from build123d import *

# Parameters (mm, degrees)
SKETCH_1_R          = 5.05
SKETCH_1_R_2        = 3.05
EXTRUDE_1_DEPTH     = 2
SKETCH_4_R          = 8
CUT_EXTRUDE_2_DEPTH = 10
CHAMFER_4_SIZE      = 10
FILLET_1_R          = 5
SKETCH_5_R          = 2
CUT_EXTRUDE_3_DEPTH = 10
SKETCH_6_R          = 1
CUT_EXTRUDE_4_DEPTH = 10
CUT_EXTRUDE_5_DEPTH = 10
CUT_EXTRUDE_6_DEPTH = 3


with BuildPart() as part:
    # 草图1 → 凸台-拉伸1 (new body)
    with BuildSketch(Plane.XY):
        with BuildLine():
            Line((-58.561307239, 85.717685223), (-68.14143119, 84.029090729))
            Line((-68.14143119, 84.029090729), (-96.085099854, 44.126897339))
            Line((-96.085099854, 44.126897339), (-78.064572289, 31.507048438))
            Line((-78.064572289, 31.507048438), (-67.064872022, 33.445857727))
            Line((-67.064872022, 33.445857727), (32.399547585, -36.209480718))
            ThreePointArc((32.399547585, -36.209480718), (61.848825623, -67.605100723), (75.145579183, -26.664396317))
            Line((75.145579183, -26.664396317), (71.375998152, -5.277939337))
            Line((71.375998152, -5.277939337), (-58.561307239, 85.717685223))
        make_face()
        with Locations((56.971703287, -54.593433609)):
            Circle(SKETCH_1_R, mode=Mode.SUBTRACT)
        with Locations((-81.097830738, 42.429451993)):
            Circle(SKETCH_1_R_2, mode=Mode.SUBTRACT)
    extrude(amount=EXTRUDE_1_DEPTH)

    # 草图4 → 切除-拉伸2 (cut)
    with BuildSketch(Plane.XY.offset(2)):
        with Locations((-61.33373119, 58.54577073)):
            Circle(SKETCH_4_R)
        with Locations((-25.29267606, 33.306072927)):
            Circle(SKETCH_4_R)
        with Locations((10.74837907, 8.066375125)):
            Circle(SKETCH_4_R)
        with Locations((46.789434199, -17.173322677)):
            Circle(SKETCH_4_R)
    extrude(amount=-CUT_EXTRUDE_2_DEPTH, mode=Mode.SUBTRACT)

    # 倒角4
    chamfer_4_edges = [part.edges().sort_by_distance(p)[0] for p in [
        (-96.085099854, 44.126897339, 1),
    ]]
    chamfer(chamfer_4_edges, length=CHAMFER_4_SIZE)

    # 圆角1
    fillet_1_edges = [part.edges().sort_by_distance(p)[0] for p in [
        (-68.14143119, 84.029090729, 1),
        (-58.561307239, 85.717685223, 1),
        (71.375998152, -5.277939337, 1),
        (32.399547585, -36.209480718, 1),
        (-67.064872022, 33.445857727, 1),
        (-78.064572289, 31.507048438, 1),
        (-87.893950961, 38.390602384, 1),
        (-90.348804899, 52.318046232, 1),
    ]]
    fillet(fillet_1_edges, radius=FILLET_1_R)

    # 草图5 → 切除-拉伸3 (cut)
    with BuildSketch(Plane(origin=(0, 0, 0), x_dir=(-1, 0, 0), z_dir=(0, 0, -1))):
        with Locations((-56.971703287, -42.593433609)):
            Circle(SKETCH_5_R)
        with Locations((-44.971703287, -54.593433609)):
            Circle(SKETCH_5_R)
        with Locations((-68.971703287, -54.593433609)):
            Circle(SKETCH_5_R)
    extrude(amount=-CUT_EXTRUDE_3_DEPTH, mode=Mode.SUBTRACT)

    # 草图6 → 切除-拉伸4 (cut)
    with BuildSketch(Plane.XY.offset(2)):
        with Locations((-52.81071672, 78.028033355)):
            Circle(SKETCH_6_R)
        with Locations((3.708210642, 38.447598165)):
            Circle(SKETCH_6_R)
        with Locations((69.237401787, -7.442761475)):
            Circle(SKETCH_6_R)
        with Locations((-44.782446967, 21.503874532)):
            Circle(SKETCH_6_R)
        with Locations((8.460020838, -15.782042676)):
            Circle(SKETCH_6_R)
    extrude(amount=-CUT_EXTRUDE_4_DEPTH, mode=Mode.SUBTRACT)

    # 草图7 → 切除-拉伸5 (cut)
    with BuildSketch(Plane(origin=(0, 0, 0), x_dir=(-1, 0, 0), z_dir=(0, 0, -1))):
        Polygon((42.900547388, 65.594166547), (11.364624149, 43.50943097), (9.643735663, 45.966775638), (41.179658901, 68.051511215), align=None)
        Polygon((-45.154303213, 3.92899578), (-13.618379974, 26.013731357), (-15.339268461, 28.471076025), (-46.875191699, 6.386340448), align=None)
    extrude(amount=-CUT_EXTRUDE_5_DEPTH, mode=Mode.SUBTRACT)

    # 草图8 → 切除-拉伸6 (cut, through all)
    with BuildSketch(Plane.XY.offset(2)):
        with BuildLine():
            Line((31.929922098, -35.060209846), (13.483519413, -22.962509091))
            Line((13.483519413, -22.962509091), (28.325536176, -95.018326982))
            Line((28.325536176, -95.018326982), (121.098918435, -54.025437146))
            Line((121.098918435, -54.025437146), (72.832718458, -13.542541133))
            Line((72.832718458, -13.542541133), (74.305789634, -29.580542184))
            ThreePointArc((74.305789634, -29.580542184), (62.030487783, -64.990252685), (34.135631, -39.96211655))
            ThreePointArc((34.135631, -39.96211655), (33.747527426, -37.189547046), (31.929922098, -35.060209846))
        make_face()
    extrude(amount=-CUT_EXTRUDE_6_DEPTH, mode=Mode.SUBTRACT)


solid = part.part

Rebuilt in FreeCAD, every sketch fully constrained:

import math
import FreeCAD as App
import Part
import Sketcher
from FreeCAD import Vector


def edges_at(feature, points):
    """Names of the edges that pass closest to the given points."""
    edges = feature.Shape.Edges
    near = lambda p: min(range(len(edges)), key=lambda i: edges[i].distToShape(Part.Vertex(*p))[0])
    return sorted({f"Edge{near(p) + 1}" for p in points})


def add_polygon(sketch, points):
    """Adds a closed chain of lines whose ends are joined by coincident constraints."""
    first, n = sketch.GeometryCount, len(points)
    for a, b in zip(points, points[1:] + points[:1]):
        sketch.addGeometry(Part.LineSegment(App.Vector(*a, 0), App.Vector(*b, 0)), False)
    for i in range(n):
        sketch.addConstraint(Sketcher.Constraint("Coincident", first + i, 2, first + (i + 1) % n, 1))

doc = App.newDocument("Part")
params = doc.addObject("Spreadsheet::Sheet", "Params")
for row, (alias, value) in enumerate([
    ("sketch1_radius", "25 mm"),
    ("sketch1_diameter", "10.1 mm"),
    ("sketch1_diameter2", "6.1 mm"),
    ("sketch1_length", "22 mm"),
    ("pad1_length", "2 mm"),
    ("sketch2_diameter", "16 mm"),
    ("pocket1_length", "10 mm"),
    ("chamfer_size", "10 mm"),
    ("fillet_radius", "5 mm"),
    ("sketch3_diameter", "4 mm"),
    ("pocket2_length", "10 mm"),
    ("sketch4_diameter", "2 mm"),
    ("pocket3_length", "10 mm"),
    ("sketch5_length", "3 mm"),
    ("sketch5_length2", "38.5 mm"),
    ("pocket4_length", "10 mm"),
    ("sketch6_radius", "5 mm"),
    ("sketch6_radius2", "22.5 mm"),
], start=1):
    params.set(f"A{row}", alias)
    params.set(f"B{row}", "=" + value)
    params.setAlias(f"B{row}", alias)

body = doc.addObject("PartDesign::Body", "Body")

sketch1 = body.newObject("Sketcher::SketchObject", "Sketch")
sketch1.AttachmentSupport = (doc.getObject("XY_Plane"), [""])
sketch1.MapMode = "FlatFace"
sketch1.addGeometry(Part.LineSegment(Vector(-58.6, 85.7, 0), Vector(-68.1, 84, 0)), False)
sketch1.addGeometry(Part.LineSegment(Vector(-68.1, 84, 0), Vector(-96.1, 44.1, 0)), False)
sketch1.addGeometry(Part.LineSegment(Vector(-96.1, 44.1, 0), Vector(-78.1, 31.5, 0)), False)
sketch1.addGeometry(Part.LineSegment(Vector(-78.1, 31.5, 0), Vector(-67.1, 33.4, 0)), False)
sketch1.addGeometry(Part.LineSegment(Vector(-67.1, 33.4, 0), Vector(32.4, -36.2, 0)), False)
sketch1.addGeometry(Part.ArcOfCircle(Part.Circle(Vector(56.4, -43.2, 0), Vector(0, 0, 1), 25), math.radians(164), math.radians(401)), False)
sketch1.addGeometry(Part.LineSegment(Vector(75.1, -26.7, 0), Vector(71.4, -5.3, 0)), False)
sketch1.addGeometry(Part.LineSegment(Vector(71.4, -5.3, 0), Vector(-58.6, 85.7, 0)), False)
sketch1.addGeometry(Part.Circle(Vector(57, -54.6, 0), Vector(0, 0, 1), 5), False)
sketch1.addGeometry(Part.Circle(Vector(-81.1, 42.4, 0), Vector(0, 0, 1), 3), False)
sketch1.addConstraint(Sketcher.Constraint("Coincident", 0, 2, 1, 1))
sketch1.addConstraint(Sketcher.Constraint("Coincident", 1, 2, 2, 1))
sketch1.addConstraint(Sketcher.Constraint("Coincident", 2, 2, 3, 1))
sketch1.addConstraint(Sketcher.Constraint("Coincident", 3, 2, 4, 1))
sketch1.addConstraint(Sketcher.Constraint("Coincident", 4, 2, 5, 1))
sketch1.addConstraint(Sketcher.Constraint("Coincident", 5, 2, 6, 1))
sketch1.addConstraint(Sketcher.Constraint("Coincident", 6, 2, 7, 1))
sketch1.addConstraint(Sketcher.Constraint("Coincident", 7, 2, 0, 1))
sketch1.addConstraint(Sketcher.Constraint("Perpendicular", 1, 2))
sketch1.addConstraint(Sketcher.Constraint("Parallel", 0, 3))
sketch1.addConstraint(Sketcher.Constraint("Parallel", 2, 4))
sketch1.addConstraint(Sketcher.Constraint("Perpendicular", 3, 6))
sketch1.addConstraint(Sketcher.Constraint("Parallel", 4, 7))
sketch1.addConstraint(Sketcher.Constraint("Radius", 5, 25.0))
sketch1.addConstraint(Sketcher.Constraint("Diameter", 8, 10.1))
sketch1.addConstraint(Sketcher.Constraint("Diameter", 9, 6.1))
sketch1.addConstraint(Sketcher.Constraint("Distance", 2, 22.0))
sketch1.addConstraint(Sketcher.Constraint("DistanceX", -1, 1, 6, 2, 71.375998))
sketch1.addConstraint(Sketcher.Constraint("Distance", 0, 9.727802))
sketch1.addConstraint(Sketcher.Constraint("DistanceX", 1, 2, -1, 1, 96.0851))
sketch1.addConstraint(Sketcher.Constraint("DistanceX", 9, 3, 0, 2, 12.9564))
sketch1.addConstraint(Sketcher.Constraint("DistanceX", 2, 2, 3, 2, 10.9997))
sketch1.addConstraint(Sketcher.Constraint("Distance", 3, 11.169261))
sketch1.addConstraint(Sketcher.Constraint("Distance", 6, 21.71613))
sketch1.addConstraint(Sketcher.Constraint("DistanceX", 9, 3, -1, 1, 81.097831))
sketch1.addConstraint(Sketcher.Constraint("DistanceY", -1, 1, 9, 3, 42.429452))
sketch1.addConstraint(Sketcher.Constraint("DistanceY", -1, 1, 0, 2, 84.029091))
sketch1.addConstraint(Sketcher.Constraint("DistanceY", -1, 1, 2, 2, 31.507048))
sketch1.addConstraint(Sketcher.Constraint("DistanceY", 4, 2, -1, 1, 36.209481))
sketch1.addConstraint(Sketcher.Constraint("DistanceX", 5, 3, 8, 3, 0.571139))
sketch1.addConstraint(Sketcher.Constraint("DistanceY", 8, 3, 5, 3, 11.38744))
sketch1.setExpression("Constraints[13]", "Params.sketch1_radius")
sketch1.setExpression("Constraints[14]", "Params.sketch1_diameter")
sketch1.setExpression("Constraints[15]", "Params.sketch1_diameter2")
sketch1.setExpression("Constraints[16]", "Params.sketch1_length")
pad1 = body.newObject("PartDesign::Pad", "Pad")
pad1.Profile = sketch1
pad1.setExpression("Length", "Params.pad1_length")

sketch2 = body.newObject("Sketcher::SketchObject", "Sketch001")
sketch2.AttachmentSupport = (doc.getObject("XY_Plane"), [""])
sketch2.MapMode = "FlatFace"
sketch2.AttachmentOffset = App.Placement(Vector(0, 0, 2), App.Rotation())
sketch2.addGeometry(Part.Circle(Vector(-61, 59, 0), Vector(0, 0, 1), 8), False)
sketch2.addGeometry(Part.Circle(Vector(-25, 33, 0), Vector(0, 0, 1), 8), False)
sketch2.addGeometry(Part.Circle(Vector(11, 8, 0), Vector(0, 0, 1), 8), False)
sketch2.addGeometry(Part.Circle(Vector(47, -17, 0), Vector(0, 0, 1), 8), False)
sketch2.addConstraint(Sketcher.Constraint("Equal", 0, 1))
sketch2.addConstraint(Sketcher.Constraint("Equal", 1, 2))
sketch2.addConstraint(Sketcher.Constraint("Equal", 2, 3))
sketch2.addConstraint(Sketcher.Constraint("Diameter", 0, 16.0))
sketch2.addConstraint(Sketcher.Constraint("DistanceX", 0, 3, -1, 1, 61.333731))
sketch2.addConstraint(Sketcher.Constraint("DistanceY", -1, 1, 0, 3, 58.545771))
sketch2.addConstraint(Sketcher.Constraint("DistanceX", -1, 1, 2, 3, 10.748379))
sketch2.addConstraint(Sketcher.Constraint("DistanceX", 1, 3, 3, 3, 72.08211))
sketch2.addConstraint(Sketcher.Constraint("DistanceX", 1, 3, -1, 1, 25.292676))
sketch2.addConstraint(Sketcher.Constraint("DistanceY", -1, 1, 1, 3, 33.306073))
sketch2.addConstraint(Sketcher.Constraint("DistanceY", -1, 1, 2, 3, 8.066375))
sketch2.addConstraint(Sketcher.Constraint("DistanceY", 3, 3, -1, 1, 17.173323))
sketch2.setExpression("Constraints[3]", "Params.sketch2_diameter")
pocket1 = body.newObject("PartDesign::Pocket", "Pocket")
pocket1.Profile = sketch2
pocket1.setExpression("Length", "Params.pocket1_length")
doc.recompute()

chamfer = body.newObject("PartDesign::Chamfer", "Chamfer")
chamfer.Base = (pocket1, edges_at(pocket1, [(-96.085, 44.127, 1)]))
chamfer.setExpression("Size", "Params.chamfer_size")
doc.recompute()

fillet = body.newObject("PartDesign::Fillet", "Fillet")
fillet.Base = (chamfer, edges_at(chamfer, [
    (-68.141, 84.029, 1),
    (-58.561, 85.718, 1),
    (71.376, -5.278, 1),
    (32.4, -36.209, 1),
    (-67.065, 33.446, 1),
    (-78.065, 31.507, 1),
    (-87.894, 38.391, 1),
    (-90.349, 52.318, 1),
]))
fillet.setExpression("Radius", "Params.fillet_radius")

sketch3 = body.newObject("Sketcher::SketchObject", "Sketch002")
sketch3.AttachmentSupport = (doc.getObject("XY_Plane"), [""])
sketch3.MapMode = "FlatFace"
sketch3.addGeometry(Part.Circle(Vector(57, -42.6, 0), Vector(0, 0, 1), 2), False)
sketch3.addGeometry(Part.Circle(Vector(45, -54.6, 0), Vector(0, 0, 1), 2), False)
sketch3.addGeometry(Part.Circle(Vector(69, -54.6, 0), Vector(0, 0, 1), 2), False)
sketch3.addConstraint(Sketcher.Constraint("Equal", 0, 1))
sketch3.addConstraint(Sketcher.Constraint("Equal", 1, 2))
sketch3.addConstraint(Sketcher.Constraint("Horizontal", 1, 3, 2, 3))
sketch3.addConstraint(Sketcher.Constraint("Diameter", 0, 4.0))
sketch3.addConstraint(Sketcher.Constraint("DistanceX", 1, 3, 0, 3, 12.0))
sketch3.addConstraint(Sketcher.Constraint("DistanceY", 1, 3, 0, 3, 12.0))
sketch3.addConstraint(Sketcher.Constraint("DistanceX", 0, 3, 2, 3, 12.0))
sketch3.addConstraint(Sketcher.Constraint("DistanceX", -1, 1, 0, 3, 56.971703))
sketch3.addConstraint(Sketcher.Constraint("DistanceY", 0, 3, -1, 1, 42.593434))
sketch3.setExpression("Constraints[3]", "Params.sketch3_diameter")
pocket2 = body.newObject("PartDesign::Pocket", "Pocket001")
pocket2.Profile = sketch3
pocket2.setExpression("Length", "Params.pocket2_length")
pocket2.Reversed = True

sketch4 = body.newObject("Sketcher::SketchObject", "Sketch003")
sketch4.AttachmentSupport = (doc.getObject("XY_Plane"), [""])
sketch4.MapMode = "FlatFace"
sketch4.AttachmentOffset = App.Placement(Vector(0, 0, 2), App.Rotation())
sketch4.addGeometry(Part.Circle(Vector(-52.8, 78, 0), Vector(0, 0, 1), 1), False)
sketch4.addGeometry(Part.Circle(Vector(3.7, 38.4, 0), Vector(0, 0, 1), 1), False)
sketch4.addGeometry(Part.Circle(Vector(69.2, -7.4, 0), Vector(0, 0, 1), 1), False)
sketch4.addGeometry(Part.Circle(Vector(-44.8, 21.5, 0), Vector(0, 0, 1), 1), False)
sketch4.addGeometry(Part.Circle(Vector(8.5, -15.8, 0), Vector(0, 0, 1), 1), False)
sketch4.addConstraint(Sketcher.Constraint("Equal", 0, 1))
sketch4.addConstraint(Sketcher.Constraint("Equal", 1, 2))
sketch4.addConstraint(Sketcher.Constraint("Equal", 2, 3))
sketch4.addConstraint(Sketcher.Constraint("Equal", 3, 4))
sketch4.addConstraint(Sketcher.Constraint("Diameter", 0, 2.0))
sketch4.addConstraint(Sketcher.Constraint("DistanceY", -1, 1, 1, 3, 38.447598))
sketch4.addConstraint(Sketcher.Constraint("DistanceX", -1, 1, 2, 3, 69.237402))
sketch4.addConstraint(Sketcher.Constraint("DistanceX", -1, 1, 1, 3, 3.708211))
sketch4.addConstraint(Sketcher.Constraint("DistanceY", 2, 3, -1, 1, 7.442761))
sketch4.addConstraint(Sketcher.Constraint("DistanceX", -1, 1, 4, 3, 8.460021))
sketch4.addConstraint(Sketcher.Constraint("DistanceX", 0, 3, 2, 3, 122.048119))
sketch4.addConstraint(Sketcher.Constraint("DistanceX", 0, 3, 3, 3, 8.02827))
sketch4.addConstraint(Sketcher.Constraint("DistanceY", 3, 3, 0, 3, 56.524159))
sketch4.addConstraint(Sketcher.Constraint("DistanceY", 4, 3, 1, 3, 54.229641))
sketch4.addConstraint(Sketcher.Constraint("DistanceY", -1, 1, 0, 3, 78.028033))
sketch4.setExpression("Constraints[4]", "Params.sketch4_diameter")
pocket3 = body.newObject("PartDesign::Pocket", "Pocket002")
pocket3.Profile = sketch4
pocket3.setExpression("Length", "Params.pocket3_length")

sketch5 = body.newObject("Sketcher::SketchObject", "Sketch004")
sketch5.AttachmentSupport = (doc.getObject("XY_Plane"), [""])
sketch5.MapMode = "FlatFace"
add_polygon(sketch5, [(-11.4, 43.5), (-42.9, 65.6), (-41.2, 68.1), (-9.6, 46)])
add_polygon(sketch5, [(45.2, 3.9), (13.6, 26), (15.3, 28.5), (46.9, 6.4)])
sketch5.addConstraint(Sketcher.Constraint("Perpendicular", 0, 1))
sketch5.addConstraint(Sketcher.Constraint("Perpendicular", 1, 2))
sketch5.addConstraint(Sketcher.Constraint("Perpendicular", 2, 3))
sketch5.addConstraint(Sketcher.Constraint("Perpendicular", 3, 4))
sketch5.addConstraint(Sketcher.Constraint("Perpendicular", 4, 5))
sketch5.addConstraint(Sketcher.Constraint("Perpendicular", 5, 6))
sketch5.addConstraint(Sketcher.Constraint("Perpendicular", 6, 7))
sketch5.addConstraint(Sketcher.Constraint("Equal", 2, 4))
sketch5.addConstraint(Sketcher.Constraint("Equal", 3, 5))
sketch5.addConstraint(Sketcher.Constraint("Distance", 1, 3.0))
sketch5.addConstraint(Sketcher.Constraint("Distance", 0, 38.5))
sketch5.addConstraint(Sketcher.Constraint("DistanceY", 4, 2, 3, 2, 17.4957))
sketch5.addConstraint(Sketcher.Constraint("DistanceX", 1, 2, -1, 1, 41.179659))
sketch5.addConstraint(Sketcher.Constraint("DistanceY", -1, 1, 1, 2, 68.051511))
sketch5.addConstraint(Sketcher.Constraint("DistanceY", -1, 1, 3, 2, 43.509431))
sketch5.addConstraint(Sketcher.Constraint("DistanceX", -1, 1, 4, 2, 13.61838))
sketch5.setExpression("Constraints[17]", "Params.sketch5_length")
sketch5.setExpression("Constraints[18]", "Params.sketch5_length2")
pocket4 = body.newObject("PartDesign::Pocket", "Pocket003")
pocket4.Profile = sketch5
pocket4.setExpression("Length", "Params.pocket4_length")
pocket4.Reversed = True

sketch6 = body.newObject("Sketcher::SketchObject", "Sketch005")
sketch6.AttachmentSupport = (doc.getObject("XY_Plane"), [""])
sketch6.MapMode = "FlatFace"
sketch6.AttachmentOffset = App.Placement(Vector(0, 0, 2), App.Rotation())
sketch6.addGeometry(Part.LineSegment(Vector(31.9, -35.1, 0), Vector(13.5, -23, 0)), False)
sketch6.addGeometry(Part.LineSegment(Vector(13.5, -23, 0), Vector(28.3, -95, 0)), False)
sketch6.addGeometry(Part.LineSegment(Vector(28.3, -95, 0), Vector(121.1, -54, 0)), False)
sketch6.addGeometry(Part.LineSegment(Vector(121.1, -54, 0), Vector(72.8, -13.5, 0)), False)
sketch6.addGeometry(Part.LineSegment(Vector(72.8, -13.5, 0), Vector(74.3, -29.6, 0)), False)
sketch6.addGeometry(Part.ArcOfCircle(Part.Circle(Vector(56.4, -43.2, 0), Vector(0, 0, 1), 22.5), math.radians(172), math.radians(397)), False)
sketch6.addGeometry(Part.ArcOfCircle(Part.Circle(Vector(29.2, -39.2, 0), Vector(0, 0, 1), 5), math.radians(-8), math.radians(57)), False)
sketch6.addConstraint(Sketcher.Constraint("Coincident", 0, 2, 1, 1))
sketch6.addConstraint(Sketcher.Constraint("Coincident", 1, 2, 2, 1))
sketch6.addConstraint(Sketcher.Constraint("Coincident", 2, 2, 3, 1))
sketch6.addConstraint(Sketcher.Constraint("Coincident", 3, 2, 4, 1))
sketch6.addConstraint(Sketcher.Constraint("Coincident", 4, 2, 5, 2))
sketch6.addConstraint(Sketcher.Constraint("Tangent", 5, 1, 6, 1))
sketch6.addConstraint(Sketcher.Constraint("Tangent", 6, 2, 0, 1))
sketch6.addConstraint(Sketcher.Constraint("Radius", 6, 5.0))
sketch6.addConstraint(Sketcher.Constraint("Radius", 5, 22.5))
sketch6.addConstraint(Sketcher.Constraint("DistanceY", 4, 2, 3, 2, 16.038001))
sketch6.addConstraint(Sketcher.Constraint("DistanceX", 0, 2, 2, 2, 107.615399))
sketch6.addConstraint(Sketcher.Constraint("DistanceX", 0, 2, 3, 2, 59.349199))
sketch6.addConstraint(Sketcher.Constraint("DistanceY", 6, 2, 0, 2, 12.097701))
sketch6.addConstraint(Sketcher.Constraint("Distance", 0, 22.059559))
sketch6.addConstraint(Sketcher.Constraint("Distance", 3, 62.99596))
sketch6.addConstraint(Sketcher.Constraint("Distance", 4, 16.105509))
sketch6.addConstraint(Sketcher.Constraint("DistanceX", -1, 1, 0, 2, 13.483519))
sketch6.addConstraint(Sketcher.Constraint("DistanceY", 0, 2, -1, 1, 22.962509))
sketch6.addConstraint(Sketcher.Constraint("DistanceY", 3, 2, -1, 1, 13.542541))
sketch6.addConstraint(Sketcher.Constraint("DistanceX", 1, 2, 6, 3, 0.862332))
sketch6.addConstraint(Sketcher.Constraint("DistanceY", 1, 2, 6, 3, 55.777072))
sketch6.setExpression("Constraints[7]", "Params.sketch6_radius")
sketch6.setExpression("Constraints[8]", "Params.sketch6_radius2")
pocket5 = body.newObject("PartDesign::Pocket", "Pocket004")
pocket5.Profile = sketch6
pocket5.Type = "ThroughAll"

doc.recompute()
